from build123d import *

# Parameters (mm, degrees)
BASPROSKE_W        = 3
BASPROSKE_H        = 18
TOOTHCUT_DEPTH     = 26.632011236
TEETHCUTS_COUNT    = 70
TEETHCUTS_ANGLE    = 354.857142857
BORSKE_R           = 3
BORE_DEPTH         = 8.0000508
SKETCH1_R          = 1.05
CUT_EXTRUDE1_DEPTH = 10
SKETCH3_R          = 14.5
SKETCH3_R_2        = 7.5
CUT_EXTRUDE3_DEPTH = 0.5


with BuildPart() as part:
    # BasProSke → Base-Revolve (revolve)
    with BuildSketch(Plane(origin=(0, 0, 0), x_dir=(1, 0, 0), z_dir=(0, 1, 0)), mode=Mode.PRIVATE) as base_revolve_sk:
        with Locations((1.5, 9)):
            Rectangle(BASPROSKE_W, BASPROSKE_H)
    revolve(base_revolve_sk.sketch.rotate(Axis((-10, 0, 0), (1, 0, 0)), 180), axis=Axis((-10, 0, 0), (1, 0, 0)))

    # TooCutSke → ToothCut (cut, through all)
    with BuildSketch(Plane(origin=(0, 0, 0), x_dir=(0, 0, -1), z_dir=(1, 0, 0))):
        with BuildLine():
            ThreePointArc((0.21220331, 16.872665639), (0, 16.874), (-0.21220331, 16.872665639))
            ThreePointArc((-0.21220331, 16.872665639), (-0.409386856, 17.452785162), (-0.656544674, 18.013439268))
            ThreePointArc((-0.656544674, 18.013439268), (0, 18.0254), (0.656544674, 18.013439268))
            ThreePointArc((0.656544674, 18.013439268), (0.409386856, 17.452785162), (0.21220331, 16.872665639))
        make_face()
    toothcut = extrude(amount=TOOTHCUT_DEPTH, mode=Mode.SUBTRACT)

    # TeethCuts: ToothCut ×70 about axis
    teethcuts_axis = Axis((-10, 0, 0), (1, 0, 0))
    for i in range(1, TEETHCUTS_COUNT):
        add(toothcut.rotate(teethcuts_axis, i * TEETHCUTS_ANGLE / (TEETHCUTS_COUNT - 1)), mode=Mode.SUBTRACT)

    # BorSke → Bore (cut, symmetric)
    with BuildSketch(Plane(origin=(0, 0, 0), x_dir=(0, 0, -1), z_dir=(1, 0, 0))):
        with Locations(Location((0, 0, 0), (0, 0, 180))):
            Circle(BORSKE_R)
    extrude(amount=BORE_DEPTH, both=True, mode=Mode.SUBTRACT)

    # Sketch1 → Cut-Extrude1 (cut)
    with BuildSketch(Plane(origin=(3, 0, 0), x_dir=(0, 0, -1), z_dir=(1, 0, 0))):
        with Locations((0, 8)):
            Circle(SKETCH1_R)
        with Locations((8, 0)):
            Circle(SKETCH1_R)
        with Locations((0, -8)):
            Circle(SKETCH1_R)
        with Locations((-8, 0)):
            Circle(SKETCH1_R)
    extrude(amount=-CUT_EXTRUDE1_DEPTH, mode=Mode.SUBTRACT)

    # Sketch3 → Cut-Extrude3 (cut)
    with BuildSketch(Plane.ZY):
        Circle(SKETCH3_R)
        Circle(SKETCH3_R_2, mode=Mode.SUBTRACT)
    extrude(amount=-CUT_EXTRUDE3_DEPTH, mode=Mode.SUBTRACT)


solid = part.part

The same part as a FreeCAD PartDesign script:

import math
import FreeCAD as App
import Part
import Sketcher
from FreeCAD import Vector
Q = App.Units.Quantity

doc = App.newDocument("Part")
body = doc.addObject("PartDesign::Body", "Body")

sketch1 = body.newObject("Sketcher::SketchObject", "Sketch")
sketch1.AttachmentSupport = (doc.getObject("XZ_Plane"), [""])
sketch1.MapMode = "FlatFace"
sketch1.addGeometry(Part.LineSegment(Vector(0, -18, 0), Vector(0, 0, 0)), False)
sketch1.addGeometry(Part.LineSegment(Vector(0, 0, 0), Vector(3, 0, 0)), False)
sketch1.addGeometry(Part.LineSegment(Vector(3, 0, 0), Vector(3, -18, 0)), False)
sketch1.addGeometry(Part.LineSegment(Vector(3, -18, 0), Vector(0, -18, 0)), False)
sketch1.addConstraint(Sketcher.Constraint("Coincident", 0, 2, 1, 1))
sketch1.addConstraint(Sketcher.Constraint("Coincident", 1, 2, 2, 1))
sketch1.addConstraint(Sketcher.Constraint("Coincident", 2, 2, 3, 1))
sketch1.addConstraint(Sketcher.Constraint("Coincident", 3, 2, 0, 1))
sketch1.addConstraint(Sketcher.Constraint("Vertical", 0))
sketch1.addConstraint(Sketcher.Constraint("Horizontal", 1))
sketch1.addConstraint(Sketcher.Constraint("Vertical", 2))
sketch1.addConstraint(Sketcher.Constraint("Horizontal", 3))
sketch1.addConstraint(Sketcher.Constraint("Coincident", 0, 2, -1, 1))
sketch1.addConstraint(Sketcher.Constraint("DistanceX", 1, 1, 1, 2, Q("3 mm")))
sketch1.addConstraint(Sketcher.Constraint("DistanceY", 0, 1, 0, 2, Q("18 mm")))
revolution = body.newObject("PartDesign::Revolution", "Revolution")
revolution.Profile = sketch1
revolution.ReferenceAxis = (sketch1, ["H_Axis"])
revolution.Angle = 360

sketch2 = body.newObject("Sketcher::SketchObject", "Sketch001")
sketch2.AttachmentSupport = (doc.getObject("YZ_Plane"), [""])
sketch2.MapMode = "FlatFace"
sketch2.addGeometry(Part.ArcOfCircle(Part.Circle(Vector(-0.000004, 0, 0), Vector(0, 0, 1), 16.874004), math.radians(-0.720557), math.radians(0.720557)), False)
sketch2.addGeometry(Part.ArcOfCircle(Part.Circle(Vector(14.912149, -6.932053, 0), Vector(0, 0, 1), 7), math.radians(63.701904), math.radians(73.735394)), False)
sketch2.addGeometry(Part.ArcOfCircle(Part.Circle(Vector(0, 0, 0), Vector(0, 0, 1), 18.0254), math.radians(-2.087363), math.radians(2.087363)), False)
sketch2.addGeometry(Part.ArcOfCircle(Part.Circle(Vector(14.912149, 6.932053, 0), Vector(0, 0, 1), 7), math.radians(-73.735394), math.radians(-63.701904)), False)
sketch2.addConstraint(Sketcher.Constraint("Coincident", 0, 1, 1, 2))
sketch2.addConstraint(Sketcher.Constraint("Coincident", 1, 1, 2, 1))
sketch2.addConstraint(Sketcher.Constraint("Coincident", 2, 2, 3, 2))
sketch2.addConstraint(Sketcher.Constraint("Coincident", 3, 1, 0, 2))
sketch2.addConstraint(Sketcher.Constraint("Coincident", 0, 3, -1, 1))
sketch2.addConstraint(Sketcher.Constraint("Coincident", 2, 3, -1, 1))
sketch2.addConstraint(Sketcher.Constraint("Equal", 1, 3))
sketch2.addConstraint(Sketcher.Constraint("Symmetric", 1, 3, 3, 3, -1))
sketch2.addConstraint(Sketcher.Constraint("Radius", 1, Q("7 mm")))
sketch2.addConstraint(Sketcher.Constraint("Radius", 2, Q("18.0254 mm")))
sketch2.addConstraint(Sketcher.Constraint("Radius", 0, Q("16.874004 mm")))
sketch2.addConstraint(Sketcher.Constraint("DistanceX", -1, 1, 1, 3, Q("14.912149 mm")))
sketch2.addConstraint(Sketcher.Constraint("DistanceX", -1, 1, 1, 1, Q("18.013439 mm")))
pocket1 = body.newObject("PartDesign::Pocket", "Pocket")
pocket1.Profile = sketch2
pocket1.Type = "ThroughAll"
pocket1.Reversed = True
doc.recompute()

polarpattern = body.newObject("PartDesign::PolarPattern", "PolarPattern")
polarpattern.Originals = [pocket1]
polarpattern.Axis = (doc.getObject("X_Axis"), [""])
polarpattern.Angle = 360
polarpattern.Occurrences = 70
body.Tip = polarpattern

sketch3 = body.newObject("Sketcher::SketchObject", "Sketch002")
sketch3.AttachmentSupport = (doc.getObject("YZ_Plane"), [""])
sketch3.MapMode = "FlatFace"
sketch3.addGeometry(Part.Circle(Vector(0, 0, 0), Vector(0, 0, 1), 3), False)
sketch3.addConstraint(Sketcher.Constraint("Coincident", 0, 3, -1, 1))
sketch3.addConstraint(Sketcher.Constraint("Diameter", 0, Q("6 mm")))
pocket2 = body.newObject("PartDesign::Pocket", "Pocket001")
pocket2.Profile = sketch3
pocket2.Length = 16.000102
pocket2.Midplane = True

sketch4 = body.newObject("Sketcher::SketchObject", "Sketch003")
sketch4.AttachmentSupport = (doc.getObject("YZ_Plane"), [""])
sketch4.MapMode = "FlatFace"
sketch4.AttachmentOffset = App.Placement(Vector(0, 0, 3), App.Rotation())
sketch4.addGeometry(Part.Circle(Vector(8, 0, 0), Vector(0, 0, 1), 1.05), False)
sketch4.addGeometry(Part.Circle(Vector(0, -8, 0), Vector(0, 0, 1), 1.05), False)
sketch4.addGeometry(Part.Circle(Vector(-8, 0, 0), Vector(0, 0, 1), 1.05), False)
sketch4.addGeometry(Part.Circle(Vector(0, 8, 0), Vector(0, 0, 1), 1.05), False)
sketch4.addConstraint(Sketcher.Constraint("Equal", 0, 1))
sketch4.addConstraint(Sketcher.Constraint("Equal", 1, 2))
sketch4.addConstraint(Sketcher.Constraint("Equal", 2, 3))
sketch4.addConstraint(Sketcher.Constraint("Symmetric", 0, 3, 2, 3, -1, 1))
sketch4.addConstraint(Sketcher.Constraint("Symmetric", 1, 3, 3, 3, -1, 1))
sketch4.addConstraint(Sketcher.Constraint("PointOnObject", 0, 3, -1))
sketch4.addConstraint(Sketcher.Constraint("PointOnObject", 1, 3, -2))
sketch4.addConstraint(Sketcher.Constraint("Diameter", 0, Q("2.1 mm")))
sketch4.addConstraint(Sketcher.Constraint("DistanceX", -1, 1, 0, 3, Q("8 mm")))
sketch4.addConstraint(Sketcher.Constraint("DistanceY", 1, 3, -1, 1, Q("8 mm")))
pocket3 = body.newObject("PartDesign::Pocket", "Pocket002")
pocket3.Profile = sketch4
pocket3.Length = 10

sketch5 = body.newObject("Sketcher::SketchObject", "Sketch004")
sketch5.AttachmentSupport = (doc.getObject("YZ_Plane"), [""])
sketch5.MapMode = "FlatFace"
sketch5.addGeometry(Part.Circle(Vector(0, 0, 0), Vector(0, 0, 1), 14.5), False)
sketch5.addGeometry(Part.Circle(Vector(0, 0, 0), Vector(0, 0, 1), 7.5), False)
sketch5.addConstraint(Sketcher.Constraint("Coincident", 0, 3, -1, 1))
sketch5.addConstraint(Sketcher.Constraint("Coincident", 1, 3, -1, 1))
sketch5.addConstraint(Sketcher.Constraint("Diameter", 0, Q("29 mm")))
sketch5.addConstraint(Sketcher.Constraint("Diameter", 1, Q("15 mm")))
pocket4 = body.newObject("PartDesign::Pocket", "Pocket003")
pocket4.Profile = sketch5
pocket4.Length = 0.5
pocket4.Reversed = True

doc.recompute()
